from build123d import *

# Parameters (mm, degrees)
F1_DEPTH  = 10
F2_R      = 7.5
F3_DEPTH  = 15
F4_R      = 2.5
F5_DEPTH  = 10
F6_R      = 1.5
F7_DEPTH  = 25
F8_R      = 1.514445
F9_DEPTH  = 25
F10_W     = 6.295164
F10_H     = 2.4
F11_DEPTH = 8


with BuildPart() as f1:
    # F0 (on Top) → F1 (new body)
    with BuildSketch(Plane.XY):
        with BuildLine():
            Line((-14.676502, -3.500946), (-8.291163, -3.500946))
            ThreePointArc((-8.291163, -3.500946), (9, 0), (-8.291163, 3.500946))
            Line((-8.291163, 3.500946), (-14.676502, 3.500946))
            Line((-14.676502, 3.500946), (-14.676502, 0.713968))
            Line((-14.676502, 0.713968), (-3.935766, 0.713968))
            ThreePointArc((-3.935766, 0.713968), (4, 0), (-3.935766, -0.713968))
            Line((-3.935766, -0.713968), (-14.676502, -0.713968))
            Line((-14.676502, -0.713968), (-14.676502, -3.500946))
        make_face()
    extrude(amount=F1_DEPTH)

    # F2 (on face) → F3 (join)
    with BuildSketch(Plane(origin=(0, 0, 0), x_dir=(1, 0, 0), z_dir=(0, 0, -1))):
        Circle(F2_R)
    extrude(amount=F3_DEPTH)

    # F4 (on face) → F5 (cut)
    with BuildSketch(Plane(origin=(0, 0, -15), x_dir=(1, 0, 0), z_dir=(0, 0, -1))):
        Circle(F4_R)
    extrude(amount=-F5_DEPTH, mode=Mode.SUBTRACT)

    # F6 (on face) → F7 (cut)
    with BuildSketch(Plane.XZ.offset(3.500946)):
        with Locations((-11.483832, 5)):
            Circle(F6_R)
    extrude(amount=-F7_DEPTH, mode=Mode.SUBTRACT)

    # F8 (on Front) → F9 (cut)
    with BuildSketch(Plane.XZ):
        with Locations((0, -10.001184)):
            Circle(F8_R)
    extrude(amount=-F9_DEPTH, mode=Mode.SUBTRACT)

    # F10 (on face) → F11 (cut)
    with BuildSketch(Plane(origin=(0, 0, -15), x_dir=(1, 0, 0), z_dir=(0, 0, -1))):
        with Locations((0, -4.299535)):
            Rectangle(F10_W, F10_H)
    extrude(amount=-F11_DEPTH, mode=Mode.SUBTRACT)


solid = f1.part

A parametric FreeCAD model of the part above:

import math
import FreeCAD as App
import Part
import Sketcher

V = App.Vector
Q = App.Units.Quantity

doc = App.newDocument("Part")
body = doc.addObject("PartDesign::Body", "Body")

sketch1 = body.newObject("Sketcher::SketchObject", "Sketch")
sketch1.AttachmentSupport = (doc.getObject("XY_Plane"), [""])
sketch1.MapMode = "FlatFace"
sketch1.addGeometry([
    Part.LineSegment(V(-14.7, -3.5, 0), V(-8.3, -3.5, 0)),
    Part.ArcOfCircle(Part.Circle(V(0, 0, 0), V(0, 0, 1), 9), math.radians(-157), math.radians(157)),
    Part.LineSegment(V(-8.3, 3.5, 0), V(-14.7, 3.5, 0)),
    Part.LineSegment(V(-14.7, 3.5, 0), V(-14.7, 0.7, 0)),
    Part.LineSegment(V(-14.7, 0.7, 0), V(-3.9, 0.7, 0)),
    Part.ArcOfCircle(Part.Circle(V(0, 0, 0), V(0, 0, 1), 4), math.radians(-170), math.radians(170)),
    Part.LineSegment(V(-3.9, -0.7, 0), V(-14.7, -0.7, 0)),
    Part.LineSegment(V(-14.7, -0.7, 0), V(-14.7, -3.5, 0)),
], False)
sketch1.addConstraint([
    Sketcher.Constraint("Coincident", 0, 2, 1, 1),
    Sketcher.Constraint("Coincident", 1, 2, 2, 1),
    Sketcher.Constraint("Coincident", 2, 2, 3, 1),
    Sketcher.Constraint("Coincident", 3, 2, 4, 1),
    Sketcher.Constraint("Coincident", 4, 2, 5, 2),
    Sketcher.Constraint("Coincident", 5, 1, 6, 1),
    Sketcher.Constraint("Coincident", 6, 2, 7, 1),
    Sketcher.Constraint("Coincident", 7, 2, 0, 1),
    Sketcher.Constraint("Horizontal", 0),
    Sketcher.Constraint("Horizontal", 2),
    Sketcher.Constraint("Vertical", 3),
    Sketcher.Constraint("Horizontal", 4),
    Sketcher.Constraint("Horizontal", 6),
    Sketcher.Constraint("Vertical", 7),
    Sketcher.Constraint("Coincident", 1, 3, -1, 1),
    Sketcher.Constraint("Coincident", 5, 3, -1, 1),
    Sketcher.Constraint("Symmetric", 3, 2, 6, 2, -1),
    Sketcher.Constraint("Vertical", 0, 2, 1, 2),
    Sketcher.Constraint("Radius", 1, Q("9 mm")),
    Sketcher.Constraint("Radius", 5, Q("4 mm")),
    Sketcher.Constraint("DistanceX", 0, 1, 0, 2, Q("6.385339 mm")),
    Sketcher.Constraint("DistanceY", 3, 2, 3, 1, Q("2.786978 mm")),
    Sketcher.Constraint("DistanceX", 2, 2, -1, 1, Q("14.676502 mm")),
])
pad1 = body.newObject("PartDesign::Pad", "Pad")
pad1.Profile = sketch1
pad1.Length = 10

sketch2 = body.newObject("Sketcher::SketchObject", "Sketch001")
sketch2.AttachmentSupport = (doc.getObject("XY_Plane"), [""])
sketch2.MapMode = "FlatFace"
sketch2.addGeometry(Part.Circle(V(0, 0, 0), V(0, 0, 1), 8), False)
sketch2.addConstraint([
    Sketcher.Constraint("Coincident", 0, 3, -1, 1),
    Sketcher.Constraint("Diameter", 0, Q("15 mm")),
])
pad2 = body.newObject("PartDesign::Pad", "Pad001")
pad2.Profile = sketch2
pad2.Length = 15
pad2.Reversed = True

sketch3 = body.newObject("Sketcher::SketchObject", "Sketch002")
sketch3.AttachmentSupport = (doc.getObject("XY_Plane"), [""])
sketch3.MapMode = "FlatFace"
sketch3.AttachmentOffset = App.Placement(V(0, 0, -15), App.Rotation())
sketch3.addGeometry(Part.Circle(V(0, 0, 0), V(0, 0, 1), 2.5), False)
sketch3.addConstraint([
    Sketcher.Constraint("Coincident", 0, 3, -1, 1),
    Sketcher.Constraint("Diameter", 0, Q("5 mm")),
])
pocket1 = body.newObject("PartDesign::Pocket", "Pocket")
pocket1.Profile = sketch3
pocket1.Length = 10
pocket1.Reversed = True

sketch4 = body.newObject("Sketcher::SketchObject", "Sketch003")
sketch4.AttachmentSupport = (doc.getObject("XZ_Plane"), [""])
sketch4.MapMode = "FlatFace"
sketch4.AttachmentOffset = App.Placement(V(0, 0, 3.500946), App.Rotation())
sketch4.addGeometry(Part.Circle(V(-11.5, 5, 0), V(0, 0, 1), 1.5), False)
sketch4.addConstraint([
    Sketcher.Constraint("Diameter", 0, Q("3 mm")),
    Sketcher.Constraint("DistanceY", -1, 1, 0, 3, Q("5 mm")),
    Sketcher.Constraint("DistanceX", 0, 3, -1, 1, Q("11.483832 mm")),
])
pocket2 = body.newObject("PartDesign::Pocket", "Pocket001")
pocket2.Profile = sketch4
pocket2.Length = 25

sketch5 = body.newObject("Sketcher::SketchObject", "Sketch004")
sketch5.AttachmentSupport = (doc.getObject("XZ_Plane"), [""])
sketch5.MapMode = "FlatFace"
sketch5.addGeometry(Part.Circle(V(0, -10, 0), V(0, 0, 1), 1.5), False)
sketch5.addConstraint([
    Sketcher.Constraint("PointOnObject", 0, 3, -2),
    Sketcher.Constraint("Diameter", 0, Q("3.02889 mm")),
    Sketcher.Constraint("DistanceY", 0, 3, -1, 1, Q("10.001184 mm")),
])
pocket3 = body.newObject("PartDesign::Pocket", "Pocket002")
pocket3.Profile = sketch5
pocket3.Length = 25

sketch6 = body.newObject("Sketcher::SketchObject", "Sketch005")
sketch6.AttachmentSupport = (doc.getObject("XY_Plane"), [""])
sketch6.MapMode = "FlatFace"
sketch6.AttachmentOffset = App.Placement(V(0, 0, -15), App.Rotation())
sketch6.addGeometry([
    Part.LineSegment(V(-3.1, 3.1, 0), V(-3.1, 5.5, 0)),
    Part.LineSegment(V(-3.1, 5.5, 0), V(3.1, 5.5, 0)),
    Part.LineSegment(V(3.1, 5.5, 0), V(3.1, 3.1, 0)),
    Part.LineSegment(V(3.1, 3.1, 0), V(-3.1, 3.1, 0)),
], False)
sketch6.addConstraint([
    Sketcher.Constraint("Coincident", 0, 2, 1, 1),
    Sketcher.Constraint("Coincident", 1, 2, 2, 1),
    Sketcher.Constraint("Coincident", 2, 2, 3, 1),
    Sketcher.Constraint("Coincident", 3, 2, 0, 1),
    Sketcher.Constraint("Vertical", 0),
    Sketcher.Constraint("Horizontal", 1),
    Sketcher.Constraint("Vertical", 2),
    Sketcher.Constraint("Horizontal", 3),
    Sketcher.Constraint("DistanceY", 0, 1, 0, 2, Q("2.4 mm")),
    Sketcher.Constraint("DistanceX", 1, 1, 1, 2, Q("6.295164 mm")),
    Sketcher.Constraint("DistanceX", 0, 2, -1, 1, Q("3.147582 mm")),
    Sketcher.Constraint("DistanceY", -1, 1, 0, 2, Q("5.499535 mm")),
])
pocket4 = body.newObject("PartDesign::Pocket", "Pocket003")
pocket4.Profile = sketch6
pocket4.Length = 8
pocket4.Reversed = True

doc.recompute()
